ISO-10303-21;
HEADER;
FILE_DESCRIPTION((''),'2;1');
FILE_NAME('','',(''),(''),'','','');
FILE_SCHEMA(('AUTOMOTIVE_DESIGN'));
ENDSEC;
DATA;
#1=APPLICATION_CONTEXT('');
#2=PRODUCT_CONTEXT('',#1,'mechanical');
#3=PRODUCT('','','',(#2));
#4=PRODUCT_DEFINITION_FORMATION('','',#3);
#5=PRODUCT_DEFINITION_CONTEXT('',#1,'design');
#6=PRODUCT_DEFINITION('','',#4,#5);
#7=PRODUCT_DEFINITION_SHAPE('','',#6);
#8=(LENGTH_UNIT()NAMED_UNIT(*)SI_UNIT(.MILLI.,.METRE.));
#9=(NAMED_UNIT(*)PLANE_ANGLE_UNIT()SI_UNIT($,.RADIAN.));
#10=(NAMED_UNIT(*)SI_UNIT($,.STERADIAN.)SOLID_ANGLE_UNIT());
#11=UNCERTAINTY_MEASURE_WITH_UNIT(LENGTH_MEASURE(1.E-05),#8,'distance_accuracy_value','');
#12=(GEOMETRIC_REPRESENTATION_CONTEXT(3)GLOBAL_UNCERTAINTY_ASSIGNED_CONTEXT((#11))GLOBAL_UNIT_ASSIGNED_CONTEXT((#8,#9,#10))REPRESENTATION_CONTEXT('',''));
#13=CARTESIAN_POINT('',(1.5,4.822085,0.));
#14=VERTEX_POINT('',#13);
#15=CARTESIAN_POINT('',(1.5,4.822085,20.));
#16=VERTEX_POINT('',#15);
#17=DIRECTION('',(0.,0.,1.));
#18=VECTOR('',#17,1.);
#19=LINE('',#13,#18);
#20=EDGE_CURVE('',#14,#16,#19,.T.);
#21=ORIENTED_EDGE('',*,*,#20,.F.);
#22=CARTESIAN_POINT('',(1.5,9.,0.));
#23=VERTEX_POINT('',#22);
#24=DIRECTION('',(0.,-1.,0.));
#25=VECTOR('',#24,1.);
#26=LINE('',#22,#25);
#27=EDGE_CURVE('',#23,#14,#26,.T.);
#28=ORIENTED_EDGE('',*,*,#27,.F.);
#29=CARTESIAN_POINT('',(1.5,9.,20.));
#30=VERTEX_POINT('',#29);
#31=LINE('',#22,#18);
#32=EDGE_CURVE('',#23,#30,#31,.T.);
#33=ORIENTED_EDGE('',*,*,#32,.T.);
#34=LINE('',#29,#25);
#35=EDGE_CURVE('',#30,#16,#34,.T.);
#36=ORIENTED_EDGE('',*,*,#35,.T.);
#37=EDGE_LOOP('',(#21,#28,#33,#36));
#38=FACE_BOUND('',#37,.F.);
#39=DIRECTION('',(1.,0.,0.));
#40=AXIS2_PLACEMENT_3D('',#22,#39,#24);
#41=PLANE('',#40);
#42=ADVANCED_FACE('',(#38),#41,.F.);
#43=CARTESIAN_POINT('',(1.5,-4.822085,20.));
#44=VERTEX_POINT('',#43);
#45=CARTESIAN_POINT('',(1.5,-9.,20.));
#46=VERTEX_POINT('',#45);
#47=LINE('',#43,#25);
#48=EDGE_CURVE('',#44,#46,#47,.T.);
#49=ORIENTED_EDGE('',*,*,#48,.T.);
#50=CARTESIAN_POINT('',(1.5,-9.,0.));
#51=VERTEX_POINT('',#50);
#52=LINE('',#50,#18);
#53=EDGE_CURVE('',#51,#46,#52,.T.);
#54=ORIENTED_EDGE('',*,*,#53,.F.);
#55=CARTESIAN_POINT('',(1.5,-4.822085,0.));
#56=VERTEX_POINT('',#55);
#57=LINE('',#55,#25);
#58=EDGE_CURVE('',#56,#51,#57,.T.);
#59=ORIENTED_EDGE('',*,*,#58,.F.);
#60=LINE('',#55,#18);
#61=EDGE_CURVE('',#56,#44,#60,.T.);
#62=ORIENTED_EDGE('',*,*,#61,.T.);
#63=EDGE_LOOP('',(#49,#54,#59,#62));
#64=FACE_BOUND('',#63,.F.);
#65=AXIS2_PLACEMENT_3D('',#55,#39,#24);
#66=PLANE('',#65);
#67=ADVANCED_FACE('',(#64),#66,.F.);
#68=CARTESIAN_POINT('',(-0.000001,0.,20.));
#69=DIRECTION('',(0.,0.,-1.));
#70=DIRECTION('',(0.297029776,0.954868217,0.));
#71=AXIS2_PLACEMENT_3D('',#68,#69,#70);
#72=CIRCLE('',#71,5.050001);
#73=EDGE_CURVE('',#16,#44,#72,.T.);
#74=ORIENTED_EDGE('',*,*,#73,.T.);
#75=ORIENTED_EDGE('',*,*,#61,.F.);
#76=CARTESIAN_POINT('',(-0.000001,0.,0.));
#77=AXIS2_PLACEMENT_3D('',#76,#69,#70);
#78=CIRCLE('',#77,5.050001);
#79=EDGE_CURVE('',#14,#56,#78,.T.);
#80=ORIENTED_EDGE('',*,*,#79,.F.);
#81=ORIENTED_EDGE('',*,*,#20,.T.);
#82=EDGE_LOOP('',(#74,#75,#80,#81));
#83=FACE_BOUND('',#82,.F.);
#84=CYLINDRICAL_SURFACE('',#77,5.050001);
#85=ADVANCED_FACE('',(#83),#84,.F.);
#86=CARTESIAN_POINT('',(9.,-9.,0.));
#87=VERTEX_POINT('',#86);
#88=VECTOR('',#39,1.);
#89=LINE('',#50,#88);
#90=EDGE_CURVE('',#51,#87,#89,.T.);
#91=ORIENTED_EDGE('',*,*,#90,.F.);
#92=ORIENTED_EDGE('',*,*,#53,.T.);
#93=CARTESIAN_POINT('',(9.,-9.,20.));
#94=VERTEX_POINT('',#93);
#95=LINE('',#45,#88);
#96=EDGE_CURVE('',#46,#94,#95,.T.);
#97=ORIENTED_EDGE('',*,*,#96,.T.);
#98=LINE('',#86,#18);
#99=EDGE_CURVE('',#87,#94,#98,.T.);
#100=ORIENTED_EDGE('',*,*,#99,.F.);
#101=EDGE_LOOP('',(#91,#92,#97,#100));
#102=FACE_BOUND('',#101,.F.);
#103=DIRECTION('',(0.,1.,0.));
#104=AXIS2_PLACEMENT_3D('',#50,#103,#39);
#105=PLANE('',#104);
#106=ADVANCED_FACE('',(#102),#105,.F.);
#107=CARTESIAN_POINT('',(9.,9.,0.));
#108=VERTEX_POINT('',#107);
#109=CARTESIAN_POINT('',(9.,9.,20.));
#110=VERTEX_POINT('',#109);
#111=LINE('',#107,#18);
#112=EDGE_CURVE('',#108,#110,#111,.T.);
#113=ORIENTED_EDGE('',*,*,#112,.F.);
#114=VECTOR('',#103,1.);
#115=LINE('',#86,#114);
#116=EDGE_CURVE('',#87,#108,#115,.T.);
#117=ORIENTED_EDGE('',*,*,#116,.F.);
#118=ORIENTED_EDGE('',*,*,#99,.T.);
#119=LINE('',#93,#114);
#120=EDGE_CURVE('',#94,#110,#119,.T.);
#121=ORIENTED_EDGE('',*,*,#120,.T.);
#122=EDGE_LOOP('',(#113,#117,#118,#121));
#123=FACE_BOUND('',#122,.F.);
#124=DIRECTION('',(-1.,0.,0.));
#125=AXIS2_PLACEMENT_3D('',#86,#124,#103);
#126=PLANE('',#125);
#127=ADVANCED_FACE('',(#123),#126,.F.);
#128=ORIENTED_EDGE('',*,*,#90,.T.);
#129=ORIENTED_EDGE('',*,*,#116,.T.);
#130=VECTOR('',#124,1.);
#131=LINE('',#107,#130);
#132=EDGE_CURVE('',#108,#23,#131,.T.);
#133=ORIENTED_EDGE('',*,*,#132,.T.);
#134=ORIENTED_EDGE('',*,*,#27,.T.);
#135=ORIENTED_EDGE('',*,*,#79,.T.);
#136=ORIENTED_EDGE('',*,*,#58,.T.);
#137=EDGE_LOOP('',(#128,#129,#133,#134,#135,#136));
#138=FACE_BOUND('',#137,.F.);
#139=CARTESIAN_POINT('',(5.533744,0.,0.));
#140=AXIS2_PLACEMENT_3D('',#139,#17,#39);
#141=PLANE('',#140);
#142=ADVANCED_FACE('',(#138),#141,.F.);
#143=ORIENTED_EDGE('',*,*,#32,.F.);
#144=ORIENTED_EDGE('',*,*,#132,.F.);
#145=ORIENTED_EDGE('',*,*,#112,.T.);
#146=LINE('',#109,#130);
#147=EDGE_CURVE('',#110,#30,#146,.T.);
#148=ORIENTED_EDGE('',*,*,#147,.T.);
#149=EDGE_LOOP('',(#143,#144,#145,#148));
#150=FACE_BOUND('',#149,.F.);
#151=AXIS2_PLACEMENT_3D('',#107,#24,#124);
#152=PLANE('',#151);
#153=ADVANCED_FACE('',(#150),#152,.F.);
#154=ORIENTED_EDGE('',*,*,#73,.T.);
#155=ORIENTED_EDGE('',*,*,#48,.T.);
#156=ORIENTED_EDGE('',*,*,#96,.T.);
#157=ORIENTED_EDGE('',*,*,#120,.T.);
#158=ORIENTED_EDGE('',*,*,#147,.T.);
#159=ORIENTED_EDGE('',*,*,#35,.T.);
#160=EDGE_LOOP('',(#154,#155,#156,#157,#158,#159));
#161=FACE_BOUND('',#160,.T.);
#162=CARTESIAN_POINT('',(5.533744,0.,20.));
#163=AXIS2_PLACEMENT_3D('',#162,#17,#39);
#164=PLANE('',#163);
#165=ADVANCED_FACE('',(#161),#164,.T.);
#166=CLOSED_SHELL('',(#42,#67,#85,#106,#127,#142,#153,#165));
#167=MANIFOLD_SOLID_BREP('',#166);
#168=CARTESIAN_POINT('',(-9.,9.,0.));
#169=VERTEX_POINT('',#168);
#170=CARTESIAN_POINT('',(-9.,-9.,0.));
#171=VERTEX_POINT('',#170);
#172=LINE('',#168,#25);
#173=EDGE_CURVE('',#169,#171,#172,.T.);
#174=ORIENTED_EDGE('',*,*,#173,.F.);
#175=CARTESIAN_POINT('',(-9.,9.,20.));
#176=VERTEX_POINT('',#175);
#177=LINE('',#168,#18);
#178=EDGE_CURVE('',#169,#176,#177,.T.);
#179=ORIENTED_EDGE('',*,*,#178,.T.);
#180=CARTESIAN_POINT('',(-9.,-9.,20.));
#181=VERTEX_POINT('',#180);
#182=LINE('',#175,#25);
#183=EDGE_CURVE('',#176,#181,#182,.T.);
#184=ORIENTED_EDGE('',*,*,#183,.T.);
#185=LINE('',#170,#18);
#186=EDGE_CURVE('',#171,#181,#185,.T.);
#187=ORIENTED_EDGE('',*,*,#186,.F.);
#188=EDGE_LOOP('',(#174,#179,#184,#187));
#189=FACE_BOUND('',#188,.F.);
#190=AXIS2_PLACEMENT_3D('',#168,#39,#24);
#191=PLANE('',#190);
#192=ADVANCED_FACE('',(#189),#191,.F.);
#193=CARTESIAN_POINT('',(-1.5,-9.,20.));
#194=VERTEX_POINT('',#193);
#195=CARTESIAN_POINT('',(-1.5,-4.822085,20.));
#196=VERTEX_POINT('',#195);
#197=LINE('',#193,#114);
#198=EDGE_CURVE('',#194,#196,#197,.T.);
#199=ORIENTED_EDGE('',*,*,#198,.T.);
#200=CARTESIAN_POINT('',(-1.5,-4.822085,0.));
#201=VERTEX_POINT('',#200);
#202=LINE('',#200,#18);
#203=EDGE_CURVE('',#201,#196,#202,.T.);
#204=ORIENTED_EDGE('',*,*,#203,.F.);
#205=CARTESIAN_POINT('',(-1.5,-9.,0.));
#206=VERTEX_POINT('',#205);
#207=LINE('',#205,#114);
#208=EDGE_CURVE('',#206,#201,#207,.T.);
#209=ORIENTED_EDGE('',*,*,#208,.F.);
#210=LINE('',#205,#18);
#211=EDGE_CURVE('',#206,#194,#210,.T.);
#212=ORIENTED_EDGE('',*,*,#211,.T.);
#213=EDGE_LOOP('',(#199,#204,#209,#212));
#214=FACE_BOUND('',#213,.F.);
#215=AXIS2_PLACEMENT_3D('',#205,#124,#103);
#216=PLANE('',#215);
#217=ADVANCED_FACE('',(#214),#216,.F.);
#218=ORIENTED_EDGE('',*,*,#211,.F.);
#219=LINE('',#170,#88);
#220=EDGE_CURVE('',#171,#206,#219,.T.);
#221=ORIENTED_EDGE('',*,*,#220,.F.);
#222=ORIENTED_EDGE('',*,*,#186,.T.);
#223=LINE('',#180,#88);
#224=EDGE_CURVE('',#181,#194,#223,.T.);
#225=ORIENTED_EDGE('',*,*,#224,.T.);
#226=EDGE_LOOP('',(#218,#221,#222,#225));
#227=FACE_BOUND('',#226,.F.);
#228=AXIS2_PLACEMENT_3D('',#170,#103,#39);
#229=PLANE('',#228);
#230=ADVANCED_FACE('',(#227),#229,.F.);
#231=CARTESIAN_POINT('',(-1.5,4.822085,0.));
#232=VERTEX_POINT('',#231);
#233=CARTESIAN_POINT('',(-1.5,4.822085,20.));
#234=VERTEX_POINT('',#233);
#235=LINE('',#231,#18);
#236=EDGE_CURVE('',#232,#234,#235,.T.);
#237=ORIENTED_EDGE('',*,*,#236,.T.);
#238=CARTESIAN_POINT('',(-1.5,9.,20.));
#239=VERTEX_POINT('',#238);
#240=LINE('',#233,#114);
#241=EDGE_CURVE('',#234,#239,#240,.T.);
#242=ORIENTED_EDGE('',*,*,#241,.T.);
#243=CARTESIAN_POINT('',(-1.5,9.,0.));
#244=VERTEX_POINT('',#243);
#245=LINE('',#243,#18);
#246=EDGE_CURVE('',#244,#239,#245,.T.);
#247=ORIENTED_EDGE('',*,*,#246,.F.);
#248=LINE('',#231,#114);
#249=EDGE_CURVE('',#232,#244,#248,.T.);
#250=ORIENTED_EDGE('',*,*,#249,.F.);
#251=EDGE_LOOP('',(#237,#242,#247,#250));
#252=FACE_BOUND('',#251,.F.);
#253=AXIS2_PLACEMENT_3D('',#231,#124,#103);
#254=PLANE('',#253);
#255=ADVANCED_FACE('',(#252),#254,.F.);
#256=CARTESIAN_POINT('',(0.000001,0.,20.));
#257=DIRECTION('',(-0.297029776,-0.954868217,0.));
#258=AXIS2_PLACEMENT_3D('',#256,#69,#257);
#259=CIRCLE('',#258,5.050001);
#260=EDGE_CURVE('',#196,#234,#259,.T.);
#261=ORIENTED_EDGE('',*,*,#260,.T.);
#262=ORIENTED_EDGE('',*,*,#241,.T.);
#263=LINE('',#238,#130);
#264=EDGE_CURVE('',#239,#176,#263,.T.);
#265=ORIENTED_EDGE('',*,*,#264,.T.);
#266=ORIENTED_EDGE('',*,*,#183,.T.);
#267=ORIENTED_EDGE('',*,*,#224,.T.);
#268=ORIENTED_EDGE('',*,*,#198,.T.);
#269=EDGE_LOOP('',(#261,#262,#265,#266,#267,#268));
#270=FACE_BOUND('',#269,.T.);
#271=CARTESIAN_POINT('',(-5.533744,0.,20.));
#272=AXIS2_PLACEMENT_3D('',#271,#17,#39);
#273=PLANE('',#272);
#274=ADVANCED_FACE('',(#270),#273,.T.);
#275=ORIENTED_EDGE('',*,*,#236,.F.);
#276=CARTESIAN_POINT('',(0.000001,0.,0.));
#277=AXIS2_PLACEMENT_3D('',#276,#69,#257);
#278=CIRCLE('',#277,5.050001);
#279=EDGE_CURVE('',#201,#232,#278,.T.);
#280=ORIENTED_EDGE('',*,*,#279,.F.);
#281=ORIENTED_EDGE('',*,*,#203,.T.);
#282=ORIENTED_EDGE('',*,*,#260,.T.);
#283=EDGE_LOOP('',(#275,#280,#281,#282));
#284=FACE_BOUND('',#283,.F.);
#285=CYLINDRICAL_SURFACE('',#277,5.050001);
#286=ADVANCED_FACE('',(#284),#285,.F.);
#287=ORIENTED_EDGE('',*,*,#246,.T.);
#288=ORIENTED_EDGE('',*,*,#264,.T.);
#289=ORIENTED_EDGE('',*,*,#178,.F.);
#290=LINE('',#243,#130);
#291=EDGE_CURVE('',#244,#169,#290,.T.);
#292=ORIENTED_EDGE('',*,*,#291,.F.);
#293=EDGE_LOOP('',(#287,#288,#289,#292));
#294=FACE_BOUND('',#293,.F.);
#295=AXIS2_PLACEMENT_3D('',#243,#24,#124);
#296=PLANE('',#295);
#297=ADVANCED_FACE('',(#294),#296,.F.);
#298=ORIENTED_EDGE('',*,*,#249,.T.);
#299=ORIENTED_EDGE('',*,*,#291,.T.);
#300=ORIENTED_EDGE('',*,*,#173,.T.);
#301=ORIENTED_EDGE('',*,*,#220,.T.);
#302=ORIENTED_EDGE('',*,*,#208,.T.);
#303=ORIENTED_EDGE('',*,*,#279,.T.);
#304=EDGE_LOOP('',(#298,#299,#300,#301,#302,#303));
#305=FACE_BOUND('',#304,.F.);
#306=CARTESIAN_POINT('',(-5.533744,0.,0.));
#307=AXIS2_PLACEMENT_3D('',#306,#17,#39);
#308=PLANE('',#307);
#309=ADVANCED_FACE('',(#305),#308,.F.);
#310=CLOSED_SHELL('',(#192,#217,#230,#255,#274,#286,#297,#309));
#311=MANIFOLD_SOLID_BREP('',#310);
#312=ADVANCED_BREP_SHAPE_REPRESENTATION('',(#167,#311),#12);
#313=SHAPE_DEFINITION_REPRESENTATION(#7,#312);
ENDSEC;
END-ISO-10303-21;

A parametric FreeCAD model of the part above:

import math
import FreeCAD as App
import Part
import Sketcher

V = App.Vector
Q = App.Units.Quantity

doc = App.newDocument("Part")
body = doc.addObject("PartDesign::Body", "Body")
body.AllowCompound = True

sketch1 = body.newObject("Sketcher::SketchObject", "Sketch")
sketch1.AttachmentSupport = (doc.getObject("XY_Plane"), [""])
sketch1.MapMode = "FlatFace"
sketch1.addGeometry([
    Part.ArcOfCircle(Part.Circle(V(0, 0, 0), V(0, 0, 1), 5.1), math.radians(-73), math.radians(73)),
    Part.LineSegment(V(1.5, -4.8, 0), V(1.5, -9, 0)),
    Part.LineSegment(V(1.5, -9, 0), V(9, -9, 0)),
    Part.LineSegment(V(9, -9, 0), V(9, 9, 0)),
    Part.LineSegment(V(9, 9, 0), V(1.5, 9, 0)),
    Part.LineSegment(V(1.5, 9, 0), V(1.5, 4.8, 0)),
    Part.LineSegment(V(-1.5, 9, 0), V(-9, 9, 0)),
    Part.LineSegment(V(-9, 9, 0), V(-9, -9, 0)),
    Part.LineSegment(V(-9, -9, 0), V(-1.5, -9, 0)),
    Part.LineSegment(V(-1.5, -9, 0), V(-1.5, -4.8, 0)),
    Part.ArcOfCircle(Part.Circle(V(0, 0, 0), V(0, 0, 1), 5.1), math.radians(107), math.radians(253)),
    Part.LineSegment(V(-1.5, 4.8, 0), V(-1.5, 9, 0)),
], False)
sketch1.addConstraint([
    Sketcher.Constraint("Coincident", 0, 1, 1, 1),
    Sketcher.Constraint("Coincident", 1, 2, 2, 1),
    Sketcher.Constraint("Coincident", 2, 2, 3, 1),
    Sketcher.Constraint("Coincident", 3, 2, 4, 1),
    Sketcher.Constraint("Coincident", 4, 2, 5, 1),
    Sketcher.Constraint("Coincident", 5, 2, 0, 2),
    Sketcher.Constraint("Coincident", 6, 2, 7, 1),
    Sketcher.Constraint("Coincident", 7, 2, 8, 1),
    Sketcher.Constraint("Coincident", 8, 2, 9, 1),
    Sketcher.Constraint("Coincident", 9, 2, 10, 2),
    Sketcher.Constraint("Coincident", 10, 1, 11, 1),
    Sketcher.Constraint("Coincident", 11, 2, 6, 1),
    Sketcher.Constraint("Vertical", 1),
    Sketcher.Constraint("Horizontal", 2),
    Sketcher.Constraint("Vertical", 3),
    Sketcher.Constraint("Horizontal", 4),
    Sketcher.Constraint("Vertical", 5),
    Sketcher.Constraint("Horizontal", 6),
    Sketcher.Constraint("Vertical", 7),
    Sketcher.Constraint("Horizontal", 8),
    Sketcher.Constraint("Vertical", 9),
    Sketcher.Constraint("Vertical", 11),
    Sketcher.Constraint("Coincident", 0, 3, -1, 1),
    Sketcher.Constraint("Coincident", 10, 3, -1, 1),
    Sketcher.Constraint("Equal", 0, 10),
    Sketcher.Constraint("Symmetric", 2, 2, 6, 2, -1, 1),
    Sketcher.Constraint("Symmetric", 4, 2, 8, 2, -1, 1),
    Sketcher.Constraint("Symmetric", 1, 2, 8, 2, -2),
    Sketcher.Constraint("Horizontal", 5, 2, 10, 1),
    Sketcher.Constraint("DistanceY", 3, 1, 3, 2, Q("18 mm")),
    Sketcher.Constraint("Radius", 0, Q("5.050001 mm")),
    Sketcher.Constraint("DistanceX", 2, 1, 2, 2, Q("7.5 mm")),
    Sketcher.Constraint("DistanceX", -1, 1, 2, 2, Q("9 mm")),
])
pad1 = body.newObject("PartDesign::Pad", "Pad")
pad1.Profile = sketch1
pad1.Length = 20

doc.recompute()
